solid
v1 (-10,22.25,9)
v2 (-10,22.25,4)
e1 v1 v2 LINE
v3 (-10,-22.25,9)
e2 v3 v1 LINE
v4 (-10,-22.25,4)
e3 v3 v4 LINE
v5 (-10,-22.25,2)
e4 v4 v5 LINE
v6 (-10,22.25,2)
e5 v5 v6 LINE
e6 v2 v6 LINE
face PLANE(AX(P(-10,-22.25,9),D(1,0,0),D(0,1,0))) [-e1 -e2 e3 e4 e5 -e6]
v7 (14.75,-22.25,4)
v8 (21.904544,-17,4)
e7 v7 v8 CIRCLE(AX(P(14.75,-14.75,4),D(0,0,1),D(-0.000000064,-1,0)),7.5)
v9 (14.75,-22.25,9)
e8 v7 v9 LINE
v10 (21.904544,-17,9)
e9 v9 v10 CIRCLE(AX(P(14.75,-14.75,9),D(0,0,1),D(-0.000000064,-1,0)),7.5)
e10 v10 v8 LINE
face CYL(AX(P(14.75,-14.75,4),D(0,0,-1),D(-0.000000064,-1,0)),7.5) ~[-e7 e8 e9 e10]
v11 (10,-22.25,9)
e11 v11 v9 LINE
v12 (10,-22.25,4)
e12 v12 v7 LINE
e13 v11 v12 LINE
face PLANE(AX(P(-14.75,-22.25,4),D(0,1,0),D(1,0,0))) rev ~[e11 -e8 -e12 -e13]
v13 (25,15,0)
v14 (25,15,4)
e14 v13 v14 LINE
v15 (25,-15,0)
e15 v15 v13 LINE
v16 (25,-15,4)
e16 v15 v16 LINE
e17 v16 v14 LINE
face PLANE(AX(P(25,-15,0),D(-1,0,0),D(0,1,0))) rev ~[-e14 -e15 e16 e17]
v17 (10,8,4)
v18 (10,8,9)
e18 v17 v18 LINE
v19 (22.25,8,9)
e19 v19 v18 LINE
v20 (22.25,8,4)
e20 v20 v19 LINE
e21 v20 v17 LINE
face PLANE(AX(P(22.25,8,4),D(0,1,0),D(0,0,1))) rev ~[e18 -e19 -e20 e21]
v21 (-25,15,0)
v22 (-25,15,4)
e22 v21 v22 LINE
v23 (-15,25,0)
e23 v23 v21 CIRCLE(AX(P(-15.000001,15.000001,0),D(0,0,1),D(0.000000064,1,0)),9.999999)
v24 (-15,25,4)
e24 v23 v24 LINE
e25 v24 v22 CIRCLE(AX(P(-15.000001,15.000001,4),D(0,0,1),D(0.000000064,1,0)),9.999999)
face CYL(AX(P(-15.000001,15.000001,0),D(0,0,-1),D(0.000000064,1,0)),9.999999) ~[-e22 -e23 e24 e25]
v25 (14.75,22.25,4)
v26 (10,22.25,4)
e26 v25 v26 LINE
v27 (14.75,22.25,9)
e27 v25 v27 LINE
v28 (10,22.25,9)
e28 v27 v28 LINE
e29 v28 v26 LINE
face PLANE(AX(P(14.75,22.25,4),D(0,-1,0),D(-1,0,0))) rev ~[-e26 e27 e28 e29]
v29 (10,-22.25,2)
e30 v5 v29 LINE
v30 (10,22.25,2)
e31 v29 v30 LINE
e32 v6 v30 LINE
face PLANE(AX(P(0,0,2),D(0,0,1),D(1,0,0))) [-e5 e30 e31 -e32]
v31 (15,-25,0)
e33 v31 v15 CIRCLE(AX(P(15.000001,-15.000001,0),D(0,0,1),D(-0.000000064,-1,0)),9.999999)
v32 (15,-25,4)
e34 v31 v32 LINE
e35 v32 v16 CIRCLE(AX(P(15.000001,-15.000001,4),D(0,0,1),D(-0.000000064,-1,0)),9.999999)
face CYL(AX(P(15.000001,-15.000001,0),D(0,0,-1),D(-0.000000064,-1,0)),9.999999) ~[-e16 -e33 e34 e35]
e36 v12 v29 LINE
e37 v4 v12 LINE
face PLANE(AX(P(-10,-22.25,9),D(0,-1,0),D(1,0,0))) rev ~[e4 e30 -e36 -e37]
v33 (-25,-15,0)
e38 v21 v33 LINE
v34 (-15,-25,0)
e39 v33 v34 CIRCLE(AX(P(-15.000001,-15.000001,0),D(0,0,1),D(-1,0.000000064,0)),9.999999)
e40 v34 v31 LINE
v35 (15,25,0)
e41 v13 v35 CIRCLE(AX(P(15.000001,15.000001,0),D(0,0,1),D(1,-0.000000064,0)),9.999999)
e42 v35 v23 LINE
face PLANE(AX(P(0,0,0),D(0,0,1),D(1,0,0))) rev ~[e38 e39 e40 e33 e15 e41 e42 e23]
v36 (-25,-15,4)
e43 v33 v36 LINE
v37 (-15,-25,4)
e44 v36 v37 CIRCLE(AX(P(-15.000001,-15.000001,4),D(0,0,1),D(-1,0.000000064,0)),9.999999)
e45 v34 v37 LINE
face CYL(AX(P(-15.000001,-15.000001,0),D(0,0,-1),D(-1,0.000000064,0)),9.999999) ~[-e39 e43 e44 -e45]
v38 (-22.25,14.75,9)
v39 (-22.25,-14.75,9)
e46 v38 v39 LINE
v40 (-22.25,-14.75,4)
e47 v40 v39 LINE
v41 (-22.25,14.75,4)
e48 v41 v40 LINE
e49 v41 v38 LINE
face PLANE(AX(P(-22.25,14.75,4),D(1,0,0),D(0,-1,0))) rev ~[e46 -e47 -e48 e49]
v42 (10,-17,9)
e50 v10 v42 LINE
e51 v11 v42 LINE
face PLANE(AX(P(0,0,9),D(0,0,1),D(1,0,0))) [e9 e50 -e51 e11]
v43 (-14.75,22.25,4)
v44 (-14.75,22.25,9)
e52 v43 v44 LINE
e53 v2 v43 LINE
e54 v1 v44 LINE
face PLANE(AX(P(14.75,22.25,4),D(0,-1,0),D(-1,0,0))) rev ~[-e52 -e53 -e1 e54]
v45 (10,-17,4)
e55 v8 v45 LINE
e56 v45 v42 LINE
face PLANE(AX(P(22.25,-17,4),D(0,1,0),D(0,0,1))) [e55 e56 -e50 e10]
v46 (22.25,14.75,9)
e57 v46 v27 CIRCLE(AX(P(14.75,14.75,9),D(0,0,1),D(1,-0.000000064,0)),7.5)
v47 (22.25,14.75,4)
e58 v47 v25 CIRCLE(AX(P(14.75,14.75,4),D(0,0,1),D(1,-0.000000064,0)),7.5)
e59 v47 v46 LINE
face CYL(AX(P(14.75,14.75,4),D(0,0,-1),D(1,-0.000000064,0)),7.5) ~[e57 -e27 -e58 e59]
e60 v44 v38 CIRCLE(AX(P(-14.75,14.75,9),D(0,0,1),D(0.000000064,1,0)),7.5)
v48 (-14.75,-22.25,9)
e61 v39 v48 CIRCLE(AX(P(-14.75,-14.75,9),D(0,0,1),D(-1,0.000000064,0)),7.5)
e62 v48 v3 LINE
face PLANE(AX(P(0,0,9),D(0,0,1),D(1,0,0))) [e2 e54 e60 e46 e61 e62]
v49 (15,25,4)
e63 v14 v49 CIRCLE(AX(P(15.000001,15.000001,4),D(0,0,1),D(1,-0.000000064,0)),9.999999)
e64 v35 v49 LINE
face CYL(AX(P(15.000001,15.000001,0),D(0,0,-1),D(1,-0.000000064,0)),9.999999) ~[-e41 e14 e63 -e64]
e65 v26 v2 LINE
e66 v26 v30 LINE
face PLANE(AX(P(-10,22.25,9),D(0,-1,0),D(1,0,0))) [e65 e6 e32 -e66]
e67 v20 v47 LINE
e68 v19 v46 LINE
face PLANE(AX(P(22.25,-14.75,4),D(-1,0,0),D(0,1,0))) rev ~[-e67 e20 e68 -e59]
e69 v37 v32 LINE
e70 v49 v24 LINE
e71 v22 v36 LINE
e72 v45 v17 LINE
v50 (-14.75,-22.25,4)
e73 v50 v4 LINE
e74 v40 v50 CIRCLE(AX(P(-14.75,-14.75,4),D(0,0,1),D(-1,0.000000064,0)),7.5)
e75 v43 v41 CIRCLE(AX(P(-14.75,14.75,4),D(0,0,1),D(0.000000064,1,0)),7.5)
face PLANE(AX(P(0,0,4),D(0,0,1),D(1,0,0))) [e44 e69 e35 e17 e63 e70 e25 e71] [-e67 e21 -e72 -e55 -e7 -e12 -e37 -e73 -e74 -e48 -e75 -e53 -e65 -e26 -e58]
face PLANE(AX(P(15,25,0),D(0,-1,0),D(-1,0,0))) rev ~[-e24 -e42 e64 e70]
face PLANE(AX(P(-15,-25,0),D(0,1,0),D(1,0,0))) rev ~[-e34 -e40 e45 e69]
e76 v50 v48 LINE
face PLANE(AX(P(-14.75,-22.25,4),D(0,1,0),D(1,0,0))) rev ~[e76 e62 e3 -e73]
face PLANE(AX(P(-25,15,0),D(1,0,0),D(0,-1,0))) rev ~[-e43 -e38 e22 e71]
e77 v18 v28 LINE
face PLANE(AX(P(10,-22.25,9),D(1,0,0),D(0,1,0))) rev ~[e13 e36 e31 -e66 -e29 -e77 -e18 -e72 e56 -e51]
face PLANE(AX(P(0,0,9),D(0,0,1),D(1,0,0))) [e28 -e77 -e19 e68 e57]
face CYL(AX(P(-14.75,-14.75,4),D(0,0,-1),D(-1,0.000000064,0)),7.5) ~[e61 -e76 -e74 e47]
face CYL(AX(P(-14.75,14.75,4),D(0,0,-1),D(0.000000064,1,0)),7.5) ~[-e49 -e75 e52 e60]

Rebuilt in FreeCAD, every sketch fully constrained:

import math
import FreeCAD as App
import Part
import Sketcher
from FreeCAD import Vector
Q = App.Units.Quantity


def add_polygon(sketch, points):
    """Adds a closed chain of lines whose ends are joined by coincident constraints."""
    first, n = sketch.GeometryCount, len(points)
    for a, b in zip(points, points[1:] + points[:1]):
        sketch.addGeometry(Part.LineSegment(App.Vector(*a, 0), App.Vector(*b, 0)), False)
    for i in range(n):
        sketch.addConstraint(Sketcher.Constraint("Coincident", first + i, 2, first + (i + 1) % n, 1))

doc = App.newDocument("Part")
body = doc.addObject("PartDesign::Body", "Body")

sketch1 = body.newObject("Sketcher::SketchObject", "Sketch")
sketch1.AttachmentSupport = (doc.getObject("XY_Plane"), [""])
sketch1.MapMode = "FlatFace"
sketch1.addGeometry([
    Part.ArcOfCircle(Part.Circle(Vector(15, 15, 0), Vector(0, 0, 1), 10), math.radians(0), math.radians(90)),
    Part.LineSegment(Vector(15, 25, 0), Vector(-15, 25, 0)),
    Part.ArcOfCircle(Part.Circle(Vector(-15, 15, 0), Vector(0, 0, 1), 10), math.radians(90), math.radians(180)),
    Part.LineSegment(Vector(-25, 15, 0), Vector(-25, -15, 0)),
    Part.ArcOfCircle(Part.Circle(Vector(-15, -15, 0), Vector(0, 0, 1), 10), math.radians(180), math.radians(270)),
    Part.LineSegment(Vector(-15, -25, 0), Vector(15, -25, 0)),
    Part.ArcOfCircle(Part.Circle(Vector(15, -15, 0), Vector(0, 0, 1), 10), math.radians(-90), math.radians(0)),
    Part.LineSegment(Vector(25, -15, 0), Vector(25, 15, 0)),
], False)
sketch1.addConstraint([
    Sketcher.Constraint("Tangent", 0, 2, 1, 1),
    Sketcher.Constraint("Tangent", 1, 2, 2, 1),
    Sketcher.Constraint("Tangent", 2, 2, 3, 1),
    Sketcher.Constraint("Tangent", 3, 2, 4, 1),
    Sketcher.Constraint("Tangent", 4, 2, 5, 1),
    Sketcher.Constraint("Tangent", 5, 2, 6, 1),
    Sketcher.Constraint("Tangent", 6, 2, 7, 1),
    Sketcher.Constraint("Tangent", 7, 2, 0, 1),
    Sketcher.Constraint("Horizontal", 1),
    Sketcher.Constraint("Vertical", 3),
    Sketcher.Constraint("Horizontal", 5),
    Sketcher.Constraint("Vertical", 7),
    Sketcher.Constraint("Equal", 0, 2),
    Sketcher.Constraint("Equal", 2, 4),
    Sketcher.Constraint("Equal", 4, 6),
    Sketcher.Constraint("Symmetric", 0, 3, 4, 3, -1, 1),
    Sketcher.Constraint("Equal", 5, 3),
    Sketcher.Constraint("Radius", 0, Q("9.999999 mm")),
    Sketcher.Constraint("DistanceX", 1, 2, 1, 1, Q("30 mm")),
])
pad1 = body.newObject("PartDesign::Pad", "Pad")
pad1.Profile = sketch1
pad1.Length = 4

sketch2 = body.newObject("Sketcher::SketchObject", "Sketch001")
sketch2.AttachmentSupport = (doc.getObject("XY_Plane"), [""])
sketch2.MapMode = "FlatFace"
sketch2.AttachmentOffset = App.Placement(Vector(0, 0, 4), App.Rotation())
sketch2.addGeometry([
    Part.ArcOfCircle(Part.Circle(Vector(15, 15, 0), Vector(0, 0, 1), 7), math.radians(0), math.radians(90)),
    Part.LineSegment(Vector(15, 22, 0), Vector(-15, 22, 0)),
    Part.ArcOfCircle(Part.Circle(Vector(-15, 15, 0), Vector(0, 0, 1), 7), math.radians(90), math.radians(180)),
    Part.LineSegment(Vector(-22, 15, 0), Vector(-22, -15, 0)),
    Part.ArcOfCircle(Part.Circle(Vector(-15, -15, 0), Vector(0, 0, 1), 7), math.radians(180), math.radians(270)),
    Part.LineSegment(Vector(-15, -22, 0), Vector(15, -22, 0)),
    Part.ArcOfCircle(Part.Circle(Vector(15, -15, 0), Vector(0, 0, 1), 7), math.radians(-90), math.radians(0)),
    Part.LineSegment(Vector(22, -15, 0), Vector(22, 15, 0)),
], False)
sketch2.addConstraint([
    Sketcher.Constraint("Tangent", 0, 2, 1, 1),
    Sketcher.Constraint("Tangent", 1, 2, 2, 1),
    Sketcher.Constraint("Tangent", 2, 2, 3, 1),
    Sketcher.Constraint("Tangent", 3, 2, 4, 1),
    Sketcher.Constraint("Tangent", 4, 2, 5, 1),
    Sketcher.Constraint("Tangent", 5, 2, 6, 1),
    Sketcher.Constraint("Tangent", 6, 2, 7, 1),
    Sketcher.Constraint("Tangent", 7, 2, 0, 1),
    Sketcher.Constraint("Horizontal", 1),
    Sketcher.Constraint("Vertical", 3),
    Sketcher.Constraint("Horizontal", 5),
    Sketcher.Constraint("Vertical", 7),
    Sketcher.Constraint("Equal", 0, 2),
    Sketcher.Constraint("Equal", 2, 4),
    Sketcher.Constraint("Equal", 4, 6),
    Sketcher.Constraint("Symmetric", 0, 3, 4, 3, -1, 1),
    Sketcher.Constraint("Equal", 5, 3),
    Sketcher.Constraint("Radius", 0, Q("7.5 mm")),
    Sketcher.Constraint("DistanceX", 1, 2, 1, 1, Q("29.5 mm")),
])
pad2 = body.newObject("PartDesign::Pad", "Pad001")
pad2.Profile = sketch2
pad2.Length = 5

sketch3 = body.newObject("Sketcher::SketchObject", "Sketch002")
sketch3.AttachmentSupport = (doc.getObject("XY_Plane"), [""])
sketch3.MapMode = "FlatFace"
sketch3.AttachmentOffset = App.Placement(Vector(0, 0, 9), App.Rotation())
add_polygon(sketch3, [(-10, 22), (-10, -22), (10, -22), (10, 22)])
sketch3.addConstraint([
    Sketcher.Constraint("Vertical", 0),
    Sketcher.Constraint("Horizontal", 1),
    Sketcher.Constraint("Vertical", 2),
    Sketcher.Constraint("Horizontal", 3),
    Sketcher.Constraint("Symmetric", 0, 2, 2, 2, -1, 1),
    Sketcher.Constraint("DistanceX", 1, 1, 1, 2, Q("20 mm")),
    Sketcher.Constraint("DistanceY", 0, 2, 0, 1, Q("44.5 mm")),
])
pocket1 = body.newObject("PartDesign::Pocket", "Pocket")
pocket1.Profile = sketch3
pocket1.Length = 7

sketch4 = body.newObject("Sketcher::SketchObject", "Sketch003")
sketch4.AttachmentSupport = (doc.getObject("YZ_Plane"), [""])
sketch4.MapMode = "FlatFace"
sketch4.AttachmentOffset = App.Placement(Vector(0, 0, 22.25), App.Rotation())
add_polygon(sketch4, [(-17, 9), (-17, 4), (8, 4), (8, 9)])
sketch4.addConstraint([
    Sketcher.Constraint("Vertical", 0),
    Sketcher.Constraint("Horizontal", 1),
    Sketcher.Constraint("Vertical", 2),
    Sketcher.Constraint("Horizontal", 3),
    Sketcher.Constraint("DistanceX", 1, 1, 1, 2, Q("25 mm")),
    Sketcher.Constraint("DistanceY", 0, 2, 0, 1, Q("5 mm")),
    Sketcher.Constraint("DistanceX", 0, 2, -1, 1, Q("17 mm")),
    Sketcher.Constraint("DistanceY", -1, 1, 0, 2, Q("4 mm")),
])
pocket2 = body.newObject("PartDesign::Pocket", "Pocket001")
pocket2.Profile = sketch4
pocket2.Length = 13

doc.recompute()
